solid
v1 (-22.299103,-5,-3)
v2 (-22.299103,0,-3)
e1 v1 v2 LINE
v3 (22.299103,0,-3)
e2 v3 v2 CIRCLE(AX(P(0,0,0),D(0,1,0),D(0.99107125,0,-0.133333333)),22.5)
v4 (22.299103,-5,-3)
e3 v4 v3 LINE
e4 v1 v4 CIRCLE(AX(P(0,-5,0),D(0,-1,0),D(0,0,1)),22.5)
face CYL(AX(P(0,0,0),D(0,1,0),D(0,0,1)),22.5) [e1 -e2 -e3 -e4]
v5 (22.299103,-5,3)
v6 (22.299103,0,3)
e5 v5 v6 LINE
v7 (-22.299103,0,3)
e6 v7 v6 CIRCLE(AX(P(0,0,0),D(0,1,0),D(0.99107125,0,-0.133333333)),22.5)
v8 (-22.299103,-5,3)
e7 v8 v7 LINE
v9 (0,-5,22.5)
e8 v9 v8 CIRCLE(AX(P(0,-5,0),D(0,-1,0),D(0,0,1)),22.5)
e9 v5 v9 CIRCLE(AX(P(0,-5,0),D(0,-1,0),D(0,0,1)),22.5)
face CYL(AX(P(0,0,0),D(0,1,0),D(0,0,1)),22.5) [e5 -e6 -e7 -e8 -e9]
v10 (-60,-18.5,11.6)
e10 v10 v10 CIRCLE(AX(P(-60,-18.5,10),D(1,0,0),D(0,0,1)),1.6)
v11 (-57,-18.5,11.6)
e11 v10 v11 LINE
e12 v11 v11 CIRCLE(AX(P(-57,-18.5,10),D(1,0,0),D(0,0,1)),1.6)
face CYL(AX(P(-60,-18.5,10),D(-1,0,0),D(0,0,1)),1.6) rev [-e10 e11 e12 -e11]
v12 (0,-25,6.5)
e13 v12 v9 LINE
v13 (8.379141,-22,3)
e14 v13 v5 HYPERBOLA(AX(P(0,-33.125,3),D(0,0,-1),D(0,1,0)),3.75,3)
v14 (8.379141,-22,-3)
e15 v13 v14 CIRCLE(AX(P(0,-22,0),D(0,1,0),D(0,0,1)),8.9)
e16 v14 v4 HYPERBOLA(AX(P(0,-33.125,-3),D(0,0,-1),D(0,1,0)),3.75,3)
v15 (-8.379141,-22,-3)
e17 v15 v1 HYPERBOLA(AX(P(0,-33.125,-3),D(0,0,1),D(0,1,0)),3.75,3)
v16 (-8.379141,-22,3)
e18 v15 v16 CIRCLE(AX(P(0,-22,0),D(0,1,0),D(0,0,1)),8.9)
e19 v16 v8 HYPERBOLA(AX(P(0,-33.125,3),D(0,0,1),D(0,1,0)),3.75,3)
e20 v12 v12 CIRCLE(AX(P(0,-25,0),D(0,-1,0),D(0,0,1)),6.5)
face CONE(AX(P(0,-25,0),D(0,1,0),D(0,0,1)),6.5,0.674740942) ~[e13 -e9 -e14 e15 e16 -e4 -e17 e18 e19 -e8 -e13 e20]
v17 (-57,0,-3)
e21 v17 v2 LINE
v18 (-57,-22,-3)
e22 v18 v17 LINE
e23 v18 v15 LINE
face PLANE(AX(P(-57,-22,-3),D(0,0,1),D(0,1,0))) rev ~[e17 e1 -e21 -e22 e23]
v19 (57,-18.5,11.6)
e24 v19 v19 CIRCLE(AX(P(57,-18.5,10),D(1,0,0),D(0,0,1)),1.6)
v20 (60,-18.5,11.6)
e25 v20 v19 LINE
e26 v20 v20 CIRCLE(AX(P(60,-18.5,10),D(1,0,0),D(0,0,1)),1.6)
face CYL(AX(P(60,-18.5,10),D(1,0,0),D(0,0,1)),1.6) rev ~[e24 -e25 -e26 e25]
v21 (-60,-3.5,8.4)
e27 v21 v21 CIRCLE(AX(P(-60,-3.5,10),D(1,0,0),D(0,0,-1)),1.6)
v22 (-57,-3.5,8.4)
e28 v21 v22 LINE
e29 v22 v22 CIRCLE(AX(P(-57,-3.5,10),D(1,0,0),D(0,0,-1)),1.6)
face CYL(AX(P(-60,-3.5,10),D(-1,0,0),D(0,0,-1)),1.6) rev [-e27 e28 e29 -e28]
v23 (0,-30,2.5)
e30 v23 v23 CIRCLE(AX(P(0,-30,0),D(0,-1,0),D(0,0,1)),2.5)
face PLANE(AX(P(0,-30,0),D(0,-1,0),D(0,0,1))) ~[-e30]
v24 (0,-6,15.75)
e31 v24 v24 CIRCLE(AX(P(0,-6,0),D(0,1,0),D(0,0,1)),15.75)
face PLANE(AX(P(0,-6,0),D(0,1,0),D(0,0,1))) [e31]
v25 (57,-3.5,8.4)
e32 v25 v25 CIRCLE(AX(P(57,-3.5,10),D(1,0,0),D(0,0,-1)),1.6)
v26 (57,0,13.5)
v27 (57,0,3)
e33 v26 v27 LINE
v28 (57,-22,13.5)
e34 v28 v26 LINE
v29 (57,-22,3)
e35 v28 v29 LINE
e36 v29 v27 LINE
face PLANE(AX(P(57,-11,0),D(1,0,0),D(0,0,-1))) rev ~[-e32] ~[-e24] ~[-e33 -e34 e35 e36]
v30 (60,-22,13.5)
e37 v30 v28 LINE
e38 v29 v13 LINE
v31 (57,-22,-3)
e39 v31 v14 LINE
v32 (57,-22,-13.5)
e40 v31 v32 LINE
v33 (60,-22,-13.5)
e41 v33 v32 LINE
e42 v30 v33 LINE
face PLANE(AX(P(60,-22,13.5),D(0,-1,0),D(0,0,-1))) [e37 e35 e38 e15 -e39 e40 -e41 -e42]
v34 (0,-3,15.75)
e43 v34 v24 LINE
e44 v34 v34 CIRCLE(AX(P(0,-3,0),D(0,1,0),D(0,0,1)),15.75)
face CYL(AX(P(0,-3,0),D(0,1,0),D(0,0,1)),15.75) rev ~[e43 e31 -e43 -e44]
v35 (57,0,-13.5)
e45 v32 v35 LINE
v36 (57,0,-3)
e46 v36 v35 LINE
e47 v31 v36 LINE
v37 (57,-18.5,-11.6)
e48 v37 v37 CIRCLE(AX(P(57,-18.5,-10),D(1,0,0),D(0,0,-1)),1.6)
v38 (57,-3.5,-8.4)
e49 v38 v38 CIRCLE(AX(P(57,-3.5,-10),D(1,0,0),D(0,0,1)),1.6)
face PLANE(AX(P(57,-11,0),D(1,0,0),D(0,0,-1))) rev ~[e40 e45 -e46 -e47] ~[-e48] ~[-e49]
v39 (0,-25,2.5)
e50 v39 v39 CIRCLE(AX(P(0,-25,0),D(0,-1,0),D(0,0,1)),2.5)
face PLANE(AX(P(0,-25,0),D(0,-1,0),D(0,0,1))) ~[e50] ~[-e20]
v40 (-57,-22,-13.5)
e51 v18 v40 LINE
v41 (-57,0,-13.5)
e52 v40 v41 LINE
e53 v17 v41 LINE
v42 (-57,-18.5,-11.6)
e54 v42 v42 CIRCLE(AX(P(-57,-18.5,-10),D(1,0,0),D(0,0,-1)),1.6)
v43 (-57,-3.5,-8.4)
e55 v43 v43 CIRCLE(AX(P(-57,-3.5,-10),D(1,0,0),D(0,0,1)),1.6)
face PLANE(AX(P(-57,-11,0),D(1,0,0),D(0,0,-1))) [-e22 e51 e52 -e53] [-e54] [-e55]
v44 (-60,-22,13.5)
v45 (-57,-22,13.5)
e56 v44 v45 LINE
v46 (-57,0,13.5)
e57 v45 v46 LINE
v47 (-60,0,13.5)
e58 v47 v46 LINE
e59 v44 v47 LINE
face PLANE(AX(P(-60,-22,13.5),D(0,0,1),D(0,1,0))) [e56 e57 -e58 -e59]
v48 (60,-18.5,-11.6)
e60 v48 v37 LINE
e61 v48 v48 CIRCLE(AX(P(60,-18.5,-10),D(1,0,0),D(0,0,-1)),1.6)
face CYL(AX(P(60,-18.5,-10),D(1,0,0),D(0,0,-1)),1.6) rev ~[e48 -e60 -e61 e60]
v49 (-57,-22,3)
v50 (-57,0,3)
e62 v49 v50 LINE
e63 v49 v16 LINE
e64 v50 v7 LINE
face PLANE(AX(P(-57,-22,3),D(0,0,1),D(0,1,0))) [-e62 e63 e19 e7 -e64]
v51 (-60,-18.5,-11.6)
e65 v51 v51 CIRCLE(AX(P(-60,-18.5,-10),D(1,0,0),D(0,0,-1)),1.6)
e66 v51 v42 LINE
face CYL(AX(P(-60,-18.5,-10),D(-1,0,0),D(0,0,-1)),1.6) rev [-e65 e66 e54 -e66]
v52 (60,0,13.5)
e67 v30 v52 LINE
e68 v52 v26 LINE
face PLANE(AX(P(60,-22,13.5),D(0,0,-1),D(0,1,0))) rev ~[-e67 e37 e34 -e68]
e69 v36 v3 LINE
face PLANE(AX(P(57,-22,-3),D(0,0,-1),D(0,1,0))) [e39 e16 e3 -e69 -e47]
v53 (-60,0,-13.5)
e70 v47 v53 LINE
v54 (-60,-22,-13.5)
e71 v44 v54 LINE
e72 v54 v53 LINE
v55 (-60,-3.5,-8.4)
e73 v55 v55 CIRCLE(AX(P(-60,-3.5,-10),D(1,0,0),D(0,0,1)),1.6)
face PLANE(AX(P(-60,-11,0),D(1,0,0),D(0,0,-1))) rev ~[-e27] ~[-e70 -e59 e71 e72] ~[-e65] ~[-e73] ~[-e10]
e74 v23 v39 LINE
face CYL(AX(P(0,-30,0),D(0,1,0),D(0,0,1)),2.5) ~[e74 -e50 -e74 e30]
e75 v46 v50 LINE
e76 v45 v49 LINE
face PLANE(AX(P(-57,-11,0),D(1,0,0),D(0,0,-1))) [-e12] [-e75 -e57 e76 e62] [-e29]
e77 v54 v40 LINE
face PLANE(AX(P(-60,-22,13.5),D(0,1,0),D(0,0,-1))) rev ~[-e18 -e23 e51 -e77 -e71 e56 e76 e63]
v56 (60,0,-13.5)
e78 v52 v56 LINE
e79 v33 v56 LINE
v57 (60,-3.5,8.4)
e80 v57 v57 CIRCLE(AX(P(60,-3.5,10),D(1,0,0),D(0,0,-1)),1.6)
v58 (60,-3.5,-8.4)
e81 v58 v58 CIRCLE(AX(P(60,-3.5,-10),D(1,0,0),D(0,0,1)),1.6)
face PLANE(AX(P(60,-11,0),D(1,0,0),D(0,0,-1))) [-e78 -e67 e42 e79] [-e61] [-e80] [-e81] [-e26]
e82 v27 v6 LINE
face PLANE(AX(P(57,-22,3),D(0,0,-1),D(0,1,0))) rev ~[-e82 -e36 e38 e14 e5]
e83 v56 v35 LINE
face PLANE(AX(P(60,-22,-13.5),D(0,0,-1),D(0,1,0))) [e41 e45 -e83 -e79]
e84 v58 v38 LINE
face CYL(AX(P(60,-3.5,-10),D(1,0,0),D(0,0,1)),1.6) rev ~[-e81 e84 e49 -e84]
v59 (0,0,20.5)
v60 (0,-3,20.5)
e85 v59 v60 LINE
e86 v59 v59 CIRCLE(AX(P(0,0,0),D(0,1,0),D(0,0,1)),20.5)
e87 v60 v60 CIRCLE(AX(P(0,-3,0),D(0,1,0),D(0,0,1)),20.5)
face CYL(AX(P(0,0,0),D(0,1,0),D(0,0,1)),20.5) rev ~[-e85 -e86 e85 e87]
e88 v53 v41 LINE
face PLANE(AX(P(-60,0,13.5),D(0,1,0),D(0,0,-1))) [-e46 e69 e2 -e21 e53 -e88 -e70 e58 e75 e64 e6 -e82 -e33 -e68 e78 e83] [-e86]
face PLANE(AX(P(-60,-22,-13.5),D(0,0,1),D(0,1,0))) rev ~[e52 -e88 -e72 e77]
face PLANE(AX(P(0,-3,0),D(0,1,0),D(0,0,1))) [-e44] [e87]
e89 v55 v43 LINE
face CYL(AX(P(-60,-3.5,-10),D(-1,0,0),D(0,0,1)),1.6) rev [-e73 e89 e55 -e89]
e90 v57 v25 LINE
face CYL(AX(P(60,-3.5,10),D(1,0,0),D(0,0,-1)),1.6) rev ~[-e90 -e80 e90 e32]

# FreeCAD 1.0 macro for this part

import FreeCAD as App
import Part
import Sketcher
Q = App.Units.Quantity


def add_polygon(sketch, points):
    """Adds a closed chain of lines whose ends are joined by coincident constraints."""
    first, n = sketch.GeometryCount, len(points)
    for a, b in zip(points, points[1:] + points[:1]):
        sketch.addGeometry(Part.LineSegment(App.Vector(*a, 0), App.Vector(*b, 0)), False)
    for i in range(n):
        sketch.addConstraint(Sketcher.Constraint("Coincident", first + i, 2, first + (i + 1) % n, 1))

doc = App.newDocument("Part")
body = doc.addObject("PartDesign::Body", "Body")

sketch1 = doc.addObject("Sketcher::SketchObject", "Sketch")
body.addObject(sketch1)
sketch1.AttachmentSupport = (doc.XZ_Plane, [""])
sketch1.MapMode = "FlatFace"
sketch1.addGeometry(Part.Circle(App.Vector(0, 0, 0), App.Vector(0, 0, 1), 22), False)
sketch1.addConstraint(Sketcher.Constraint("Coincident", 0, 3, -1, 1))
sketch1.addConstraint(Sketcher.Constraint("Diameter", 0, Q("45 mm")))
pad1 = doc.addObject("PartDesign::Pad", "Pad")
body.addObject(pad1)
pad1.Profile = sketch1
pad1.Length = 50

sketch2 = doc.addObject("Sketcher::SketchObject", "Sketch001")
body.addObject(sketch2)
sketch2.AttachmentSupport = (doc.YZ_Plane, [""])
sketch2.MapMode = "FlatFace"
add_polygon(sketch2, [(-57, -33.6), (-5, -33.6), (-5, -22.5), (-25, -6.5), (-25, -2.5), (-30, -2.5), (-30, 0), (-57, 0)])
sketch2.addConstraint(Sketcher.Constraint("Horizontal", 0))
sketch2.addConstraint(Sketcher.Constraint("Vertical", 1))
sketch2.addConstraint(Sketcher.Constraint("Vertical", 3))
sketch2.addConstraint(Sketcher.Constraint("Horizontal", 4))
sketch2.addConstraint(Sketcher.Constraint("Vertical", 5))
sketch2.addConstraint(Sketcher.Constraint("Horizontal", 6))
sketch2.addConstraint(Sketcher.Constraint("Vertical", 7))
sketch2.addConstraint(Sketcher.Constraint("PointOnObject", 5, 2, -1))
sketch2.addConstraint(Sketcher.Constraint("DistanceX", 4, 2, 4, 1, Q("5 mm")))
sketch2.addConstraint(Sketcher.Constraint("DistanceY", 3, 1, 3, 2, Q("4 mm")))
sketch2.addConstraint(Sketcher.Constraint("DistanceY", 5, 1, 5, 2, Q("2.5 mm")))
sketch2.addConstraint(Sketcher.Constraint("DistanceX", 0, 2, -1, 1, Q("5 mm")))
sketch2.addConstraint(Sketcher.Constraint("DistanceX", 2, 2, -1, 1, Q("25 mm")))
sketch2.addConstraint(Sketcher.Constraint("DistanceY", 1, 2, 2, 2, Q("16 mm")))
sketch2.addConstraint(Sketcher.Constraint("DistanceX", 0, 1, 0, 2, Q("51.97144 mm")))
sketch2.addConstraint(Sketcher.Constraint("DistanceY", 1, 1, 1, 2, Q("11.095146 mm")))
groove = doc.addObject("PartDesign::Groove", "Groove")
body.addObject(groove)
groove.Profile = sketch2
groove.ReferenceAxis = (sketch2, ["H_Axis"])
groove.Angle = 360

sketch3 = doc.addObject("Sketcher::SketchObject", "Sketch002")
body.addObject(sketch3)
sketch3.AttachmentSupport = (doc.XZ_Plane, [""])
sketch3.MapMode = "FlatFace"
sketch3.addGeometry(Part.Circle(App.Vector(0, 0, 0), App.Vector(0, 0, 1), 20), False)
sketch3.addConstraint(Sketcher.Constraint("Coincident", 0, 3, -1, 1))
sketch3.addConstraint(Sketcher.Constraint("Diameter", 0, Q("41 mm")))
pocket1 = doc.addObject("PartDesign::Pocket", "Pocket")
body.addObject(pocket1)
pocket1.Profile = sketch3
pocket1.Length = 3
pocket1.Reversed = True

sketch4 = doc.addObject("Sketcher::SketchObject", "Sketch003")
body.addObject(sketch4)
sketch4.AttachmentSupport = (doc.XZ_Plane, [""])
sketch4.MapMode = "FlatFace"
sketch4.AttachmentOffset = App.Placement(App.Vector(0, 0, 3), App.Rotation())
sketch4.addGeometry(Part.Circle(App.Vector(0, 0, 0), App.Vector(0, 0, 1), 16), False)
sketch4.addConstraint(Sketcher.Constraint("Coincident", 0, 3, -1, 1))
sketch4.addConstraint(Sketcher.Constraint("Diameter", 0, Q("31.5 mm")))
pocket2 = doc.addObject("PartDesign::Pocket", "Pocket001")
body.addObject(pocket2)
pocket2.Profile = sketch4
pocket2.Length = 3
pocket2.Reversed = True
body2 = doc.addObject("PartDesign::Body", "Body001")

sketch5 = doc.addObject("Sketcher::SketchObject", "Sketch004")
body2.addObject(sketch5)
sketch5.AttachmentSupport = (doc.getObject("YZ_Plane001"), [""])
sketch5.MapMode = "FlatFace"
sketch5.AttachmentOffset = App.Placement(App.Vector(0, 0, 60), App.Rotation())
add_polygon(sketch5, [(0, 13.5), (-22, 13.5), (-22, -13.5), (0, -13.5)])
sketch5.addGeometry(Part.Circle(App.Vector(-18.5, 10, 0), App.Vector(0, 0, 1), 1.6), False)
sketch5.addGeometry(Part.Circle(App.Vector(-18.5, -10, 0), App.Vector(0, 0, 1), 1.6), False)
sketch5.addGeometry(Part.Circle(App.Vector(-3.5, 10, 0), App.Vector(0, 0, 1), 1.6), False)
sketch5.addGeometry(Part.Circle(App.Vector(-3.5, -10, 0), App.Vector(0, 0, 1), 1.6), False)
sketch5.addConstraint(Sketcher.Constraint("Horizontal", 0))
sketch5.addConstraint(Sketcher.Constraint("Vertical", 1))
sketch5.addConstraint(Sketcher.Constraint("Horizontal", 2))
sketch5.addConstraint(Sketcher.Constraint("Vertical", 3))
sketch5.addConstraint(Sketcher.Constraint("Equal", 4, 5))
sketch5.addConstraint(Sketcher.Constraint("Equal", 5, 6))
sketch5.addConstraint(Sketcher.Constraint("Equal", 6, 7))
sketch5.addConstraint(Sketcher.Constraint("Symmetric", 2, 2, 3, 2, -1, 1))
sketch5.addConstraint(Sketcher.Constraint("Symmetric", 4, 3, 5, 3, -1))
sketch5.addConstraint(Sketcher.Constraint("Symmetric", 6, 3, 7, 3, -1))
sketch5.addConstraint(Sketcher.Constraint("Horizontal", 4, 3, 6, 3))
sketch5.addConstraint(Sketcher.Constraint("Diameter", 4, Q("3.2 mm")))
sketch5.addConstraint(Sketcher.Constraint("DistanceX", 0, 2, 0, 1, Q("22 mm")))
sketch5.addConstraint(Sketcher.Constraint("DistanceY", 1, 2, 1, 1, Q("27 mm")))
sketch5.addConstraint(Sketcher.Constraint("DistanceY", -1, 1, 4, 3, Q("10 mm")))
sketch5.addConstraint(Sketcher.Constraint("DistanceX", 4, 3, 6, 3, Q("15 mm")))
sketch5.addConstraint(Sketcher.Constraint("DistanceX", 4, 3, -1, 1, Q("18.5 mm")))
pad2 = doc.addObject("PartDesign::Pad", "Pad001")
body2.addObject(pad2)
pad2.Profile = sketch5
pad2.Length = 3
pad2.Reversed = True
body.AllowCompound = True
doc.recompute()

boolean = doc.addObject("PartDesign::Boolean", "Boolean")
body.addObject(boolean)
boolean.Type = "Fuse"
boolean.addObjects([body2])

sketch6 = doc.addObject("Sketcher::SketchObject", "Sketch005")
body.addObject(sketch6)
sketch6.AttachmentSupport = (doc.YZ_Plane, [""])
sketch6.MapMode = "FlatFace"
sketch6.AttachmentOffset = App.Placement(App.Vector(0, 0, 57), App.Rotation())
add_polygon(sketch6, [(0, -3), (-22, -3), (-22, 3), (0, 3)])
sketch6.addConstraint(Sketcher.Constraint("Horizontal", 0))
sketch6.addConstraint(Sketcher.Constraint("Vertical", 1))
sketch6.addConstraint(Sketcher.Constraint("Horizontal", 2))
sketch6.addConstraint(Sketcher.Constraint("Vertical", 3))
sketch6.addConstraint(Sketcher.Constraint("Symmetric", 2, 2, 3, 2, -1, 1))
sketch6.addConstraint(Sketcher.Constraint("DistanceX", 0, 2, 0, 1, Q("22 mm")))
sketch6.addConstraint(Sketcher.Constraint("DistanceY", 1, 1, 1, 2, Q("6 mm")))
pad3 = doc.addObject("PartDesign::Pad", "Pad002")
body.addObject(pad3)
pad3.Profile = sketch6
pad3.Type = "UpToFirst"
pad3.Reversed = True
body3 = doc.addObject("PartDesign::Body", "Body002")

sketch7 = doc.addObject("Sketcher::SketchObject", "Sketch006")
body3.addObject(sketch7)
sketch7.AttachmentSupport = (doc.getObject("YZ_Plane002"), [""])
sketch7.MapMode = "FlatFace"
sketch7.AttachmentOffset = App.Placement(App.Vector(0, 0, -60), App.Rotation())
add_polygon(sketch7, [(0, 13.5), (-22, 13.5), (-22, -13.5), (0, -13.5)])
sketch7.addGeometry(Part.Circle(App.Vector(-18.5, 10, 0), App.Vector(0, 0, 1), 1.6), False)
sketch7.addGeometry(Part.Circle(App.Vector(-18.5, -10, 0), App.Vector(0, 0, 1), 1.6), False)
sketch7.addGeometry(Part.Circle(App.Vector(-3.5, 10, 0), App.Vector(0, 0, 1), 1.6), False)
sketch7.addGeometry(Part.Circle(App.Vector(-3.5, -10, 0), App.Vector(0, 0, 1), 1.6), False)
sketch7.addConstraint(Sketcher.Constraint("Horizontal", 0))
sketch7.addConstraint(Sketcher.Constraint("Vertical", 1))
sketch7.addConstraint(Sketcher.Constraint("Horizontal", 2))
sketch7.addConstraint(Sketcher.Constraint("Vertical", 3))
sketch7.addConstraint(Sketcher.Constraint("Equal", 4, 5))
sketch7.addConstraint(Sketcher.Constraint("Equal", 5, 6))
sketch7.addConstraint(Sketcher.Constraint("Equal", 6, 7))
sketch7.addConstraint(Sketcher.Constraint("Symmetric", 2, 2, 3, 2, -1, 1))
sketch7.addConstraint(Sketcher.Constraint("Symmetric", 4, 3, 5, 3, -1))
sketch7.addConstraint(Sketcher.Constraint("Symmetric", 6, 3, 7, 3, -1))
sketch7.addConstraint(Sketcher.Constraint("Horizontal", 4, 3, 6, 3))
sketch7.addConstraint(Sketcher.Constraint("Diameter", 4, Q("3.2 mm")))
sketch7.addConstraint(Sketcher.Constraint("DistanceX", 0, 2, 0, 1, Q("22 mm")))
sketch7.addConstraint(Sketcher.Constraint("DistanceY", 1, 2, 1, 1, Q("27 mm")))
sketch7.addConstraint(Sketcher.Constraint("DistanceY", -1, 1, 4, 3, Q("10 mm")))
sketch7.addConstraint(Sketcher.Constraint("DistanceX", 4, 3, 6, 3, Q("15 mm")))
sketch7.addConstraint(Sketcher.Constraint("DistanceX", 4, 3, -1, 1, Q("18.5 mm")))
pad4 = doc.addObject("PartDesign::Pad", "Pad003")
body3.addObject(pad4)
pad4.Profile = sketch7
pad4.Length = 3
body.AllowCompound = True
doc.recompute()

boolean2 = doc.addObject("PartDesign::Boolean", "Boolean001")
body.addObject(boolean2)
boolean2.Type = "Fuse"
boolean2.addObjects([body3])

sketch8 = doc.addObject("Sketcher::SketchObject", "Sketch007")
body.addObject(sketch8)
sketch8.AttachmentSupport = (doc.YZ_Plane, [""])
sketch8.MapMode = "FlatFace"
sketch8.AttachmentOffset = App.Placement(App.Vector(0, 0, -57), App.Rotation())
add_polygon(sketch8, [(0, 3), (-22, 3), (-22, -3), (0, -3)])
sketch8.addConstraint(Sketcher.Constraint("Horizontal", 0))
sketch8.addConstraint(Sketcher.Constraint("Vertical", 1))
sketch8.addConstraint(Sketcher.Constraint("Horizontal", 2))
sketch8.addConstraint(Sketcher.Constraint("Vertical", 3))
sketch8.addConstraint(Sketcher.Constraint("Symmetric", 2, 2, 3, 2, -1, 1))
sketch8.addConstraint(Sketcher.Constraint("DistanceX", 0, 2, 0, 1, Q("22 mm")))
sketch8.addConstraint(Sketcher.Constraint("DistanceY", 1, 2, 1, 1, Q("6 mm")))
pad5 = doc.addObject("PartDesign::Pad", "Pad004")
body.addObject(pad5)
pad5.Profile = sketch8
pad5.Type = "UpToFirst"

doc.recompute()
